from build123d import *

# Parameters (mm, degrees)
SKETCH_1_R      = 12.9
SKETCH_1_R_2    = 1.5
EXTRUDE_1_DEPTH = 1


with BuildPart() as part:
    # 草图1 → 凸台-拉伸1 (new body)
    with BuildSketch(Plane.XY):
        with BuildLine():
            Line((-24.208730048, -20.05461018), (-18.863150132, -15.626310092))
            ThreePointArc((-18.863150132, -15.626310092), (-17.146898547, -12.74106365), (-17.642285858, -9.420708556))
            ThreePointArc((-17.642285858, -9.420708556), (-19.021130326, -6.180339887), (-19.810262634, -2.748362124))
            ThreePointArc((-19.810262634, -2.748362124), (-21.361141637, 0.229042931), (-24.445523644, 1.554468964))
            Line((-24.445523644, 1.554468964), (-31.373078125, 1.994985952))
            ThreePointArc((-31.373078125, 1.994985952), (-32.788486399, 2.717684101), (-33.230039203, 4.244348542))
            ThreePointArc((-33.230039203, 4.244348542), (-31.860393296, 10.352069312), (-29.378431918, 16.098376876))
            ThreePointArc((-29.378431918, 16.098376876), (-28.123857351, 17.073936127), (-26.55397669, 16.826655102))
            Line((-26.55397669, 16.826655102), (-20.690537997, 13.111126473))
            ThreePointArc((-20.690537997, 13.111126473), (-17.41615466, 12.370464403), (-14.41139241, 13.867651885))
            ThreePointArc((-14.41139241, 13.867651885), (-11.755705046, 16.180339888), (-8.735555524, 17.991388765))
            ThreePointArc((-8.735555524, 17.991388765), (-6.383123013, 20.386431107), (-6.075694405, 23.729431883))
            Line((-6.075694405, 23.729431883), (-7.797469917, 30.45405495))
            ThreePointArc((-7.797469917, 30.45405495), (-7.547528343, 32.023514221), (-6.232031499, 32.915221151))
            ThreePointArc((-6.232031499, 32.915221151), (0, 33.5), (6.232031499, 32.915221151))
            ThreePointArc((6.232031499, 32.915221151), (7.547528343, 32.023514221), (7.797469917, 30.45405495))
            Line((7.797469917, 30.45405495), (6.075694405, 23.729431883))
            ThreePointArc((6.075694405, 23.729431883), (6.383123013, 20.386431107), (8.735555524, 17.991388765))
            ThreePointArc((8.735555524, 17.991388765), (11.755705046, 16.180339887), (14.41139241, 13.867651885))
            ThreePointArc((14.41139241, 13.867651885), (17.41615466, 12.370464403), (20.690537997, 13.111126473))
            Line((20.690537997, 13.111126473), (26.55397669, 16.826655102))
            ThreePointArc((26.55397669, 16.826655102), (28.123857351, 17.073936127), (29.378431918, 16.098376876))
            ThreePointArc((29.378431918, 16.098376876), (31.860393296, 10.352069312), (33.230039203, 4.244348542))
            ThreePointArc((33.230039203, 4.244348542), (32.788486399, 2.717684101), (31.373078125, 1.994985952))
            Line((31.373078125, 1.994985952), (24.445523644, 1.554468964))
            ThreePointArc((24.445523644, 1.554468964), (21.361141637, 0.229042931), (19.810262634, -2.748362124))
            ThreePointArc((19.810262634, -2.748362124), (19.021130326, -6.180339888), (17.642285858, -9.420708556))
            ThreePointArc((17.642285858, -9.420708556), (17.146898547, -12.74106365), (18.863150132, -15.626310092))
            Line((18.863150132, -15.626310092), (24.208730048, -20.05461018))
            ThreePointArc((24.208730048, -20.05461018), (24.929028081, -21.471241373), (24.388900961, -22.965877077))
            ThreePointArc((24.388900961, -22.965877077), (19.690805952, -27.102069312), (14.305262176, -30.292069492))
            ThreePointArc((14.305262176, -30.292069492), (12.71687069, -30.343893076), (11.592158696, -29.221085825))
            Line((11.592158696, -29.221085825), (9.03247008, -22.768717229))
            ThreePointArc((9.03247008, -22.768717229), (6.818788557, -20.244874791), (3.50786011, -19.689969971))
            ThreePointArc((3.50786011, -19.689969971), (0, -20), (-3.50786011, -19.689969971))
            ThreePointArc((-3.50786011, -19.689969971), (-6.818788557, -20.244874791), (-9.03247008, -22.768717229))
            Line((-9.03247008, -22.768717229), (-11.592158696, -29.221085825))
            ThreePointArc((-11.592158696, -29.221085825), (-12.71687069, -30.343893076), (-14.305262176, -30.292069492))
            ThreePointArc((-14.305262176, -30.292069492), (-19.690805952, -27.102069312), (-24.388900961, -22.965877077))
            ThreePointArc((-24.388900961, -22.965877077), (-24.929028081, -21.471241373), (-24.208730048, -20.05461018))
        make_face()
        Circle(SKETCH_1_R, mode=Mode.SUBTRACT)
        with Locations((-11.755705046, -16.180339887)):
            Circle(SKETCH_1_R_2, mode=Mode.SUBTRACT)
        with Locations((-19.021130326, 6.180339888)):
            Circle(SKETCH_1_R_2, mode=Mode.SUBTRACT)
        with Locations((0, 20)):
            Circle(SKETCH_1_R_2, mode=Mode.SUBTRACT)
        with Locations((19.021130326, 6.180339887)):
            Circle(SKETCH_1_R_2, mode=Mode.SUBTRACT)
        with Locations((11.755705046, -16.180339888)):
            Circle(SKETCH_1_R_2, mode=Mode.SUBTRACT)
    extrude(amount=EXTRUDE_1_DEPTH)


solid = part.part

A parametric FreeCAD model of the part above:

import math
import FreeCAD as App
import Part
import Sketcher

V = App.Vector
Q = App.Units.Quantity

doc = App.newDocument("Part")
params = doc.addObject("Spreadsheet::Sheet", "Params")
for row, (alias, value) in enumerate([
    ("sketch1_diameter", "3 mm"),
    ("sketch1_radius", "2 mm"),
    ("sketch1_radius2", "5 mm"),
    ("sketch1_radius3", "20 mm"),
    ("sketch1_diameter2", "25.8 mm"),
    ("pad1_length", "1 mm"),
], start=1):
    params.set(f"A{row}", alias)
    params.set(f"B{row}", "=" + value)
    params.setAlias(f"B{row}", alias)

body = doc.addObject("PartDesign::Body", "Body")

sketch1 = body.newObject("Sketcher::SketchObject", "Sketch")
sketch1.AttachmentSupport = (doc.getObject("XY_Plane"), [""])
sketch1.MapMode = "FlatFace"
sketch1.addGeometry(Part.LineSegment(V(-18.9, -15.6, 0), V(-24.2, -20.1, 0)), False)
sketch1.addGeometry(Part.ArcOfCircle(Part.Circle(V(-22.9, -21.6, 0), V(0, 0, 1), 2), math.radians(130), math.radians(223)), False)
sketch1.addGeometry(Part.ArcOfCircle(Part.Circle(V(0, 0, 0), V(0, 0, 1), 33.5), math.radians(-137), math.radians(-115)), False)
sketch1.addGeometry(Part.ArcOfCircle(Part.Circle(V(-13.5, -28.5, 0), V(0, 0, 1), 2), math.radians(-115), math.radians(-22)), False)
sketch1.addGeometry(Part.LineSegment(V(-11.6, -29.2, 0), V(-9, -22.8, 0)), False)
sketch1.addGeometry(Part.ArcOfCircle(Part.Circle(V(-4.4, -24.6, 0), V(0, 0, 1), 5), math.radians(80), math.radians(158)), False)
sketch1.addGeometry(Part.ArcOfCircle(Part.Circle(V(0, 0, 0), V(0, 0, 1), 20), math.radians(-100), math.radians(-80)), False)
sketch1.addGeometry(Part.ArcOfCircle(Part.Circle(V(4.4, -24.6, 0), V(0, 0, 1), 5), math.radians(22), math.radians(100)), False)
sketch1.addGeometry(Part.LineSegment(V(9, -22.8, 0), V(11.6, -29.2, 0)), False)
sketch1.addGeometry(Part.ArcOfCircle(Part.Circle(V(13.5, -28.5, 0), V(0, 0, 1), 2), math.radians(-158), math.radians(-65)), False)
sketch1.addGeometry(Part.ArcOfCircle(Part.Circle(V(0, 0, 0), V(0, 0, 1), 33.5), math.radians(-65), math.radians(-43)), False)
sketch1.addGeometry(Part.ArcOfCircle(Part.Circle(V(22.9, -21.6, 0), V(0, 0, 1), 2), math.radians(-43), math.radians(50)), False)
sketch1.addGeometry(Part.LineSegment(V(24.2, -20.1, 0), V(18.9, -15.6, 0)), False)
sketch1.addGeometry(Part.ArcOfCircle(Part.Circle(V(22.1, -11.8, 0), V(0, 0, 1), 5), math.radians(152), math.radians(230)), False)
sketch1.addGeometry(Part.ArcOfCircle(Part.Circle(V(0, 0, 0), V(0, 0, 1), 20), math.radians(-28), math.radians(-8)), False)
sketch1.addGeometry(Part.ArcOfCircle(Part.Circle(V(24.8, -3.4, 0), V(0, 0, 1), 5), math.radians(94), math.radians(172)), False)
sketch1.addGeometry(Part.LineSegment(V(24.4, 1.6, 0), V(31.4, 2, 0)), False)
sketch1.addGeometry(Part.ArcOfCircle(Part.Circle(V(31.2, 4, 0), V(0, 0, 1), 2), math.radians(-86), math.radians(7)), False)
sketch1.addGeometry(Part.ArcOfCircle(Part.Circle(V(0, 0, 0), V(0, 0, 1), 33.5), math.radians(7), math.radians(29)), False)
sketch1.addGeometry(Part.ArcOfCircle(Part.Circle(V(27.6, 15.1, 0), V(0, 0, 1), 2), math.radians(29), math.radians(122)), False)
sketch1.addGeometry(Part.LineSegment(V(26.6, 16.8, 0), V(20.7, 13.1, 0)), False)
sketch1.addGeometry(Part.ArcOfCircle(Part.Circle(V(18, 17.3, 0), V(0, 0, 1), 5), math.radians(-136), math.radians(-58)), False)
sketch1.addGeometry(Part.ArcOfCircle(Part.Circle(V(0, 0, 0), V(0, 0, 1), 20), math.radians(44), math.radians(64)), False)
sketch1.addGeometry(Part.ArcOfCircle(Part.Circle(V(10.9, 22.5, 0), V(0, 0, 1), 5), math.radians(166), math.radians(244)), False)
sketch1.addGeometry(Part.LineSegment(V(6.1, 23.7, 0), V(7.8, 30.5, 0)), False)
sketch1.addGeometry(Part.ArcOfCircle(Part.Circle(V(5.9, 31, 0), V(0, 0, 1), 2), math.radians(-14), math.radians(79)), False)
sketch1.addGeometry(Part.ArcOfCircle(Part.Circle(V(0, 0, 0), V(0, 0, 1), 33.5), math.radians(79), math.radians(101)), False)
sketch1.addGeometry(Part.ArcOfCircle(Part.Circle(V(-5.9, 31, 0), V(0, 0, 1), 2), math.radians(101), math.radians(194)), False)
sketch1.addGeometry(Part.LineSegment(V(-7.8, 30.5, 0), V(-6.1, 23.7, 0)), False)
sketch1.addGeometry(Part.ArcOfCircle(Part.Circle(V(-10.9, 22.5, 0), V(0, 0, 1), 5), math.radians(-64), math.radians(14)), False)
sketch1.addGeometry(Part.ArcOfCircle(Part.Circle(V(0, 0, 0), V(0, 0, 1), 20), math.radians(116), math.radians(136)), False)
sketch1.addGeometry(Part.ArcOfCircle(Part.Circle(V(-18, 17.3, 0), V(0, 0, 1), 5), math.radians(-122), math.radians(-44)), False)
sketch1.addGeometry(Part.LineSegment(V(-20.7, 13.1, 0), V(-26.6, 16.8, 0)), False)
sketch1.addGeometry(Part.ArcOfCircle(Part.Circle(V(-27.6, 15.1, 0), V(0, 0, 1), 2), math.radians(58), math.radians(151)), False)
sketch1.addGeometry(Part.ArcOfCircle(Part.Circle(V(0, 0, 0), V(0, 0, 1), 33.5), math.radians(151), math.radians(173)), False)
sketch1.addGeometry(Part.ArcOfCircle(Part.Circle(V(-31.2, 4, 0), V(0, 0, 1), 2), math.radians(173), math.radians(266)), False)
sketch1.addGeometry(Part.LineSegment(V(-31.4, 2, 0), V(-24.4, 1.6, 0)), False)
sketch1.addGeometry(Part.ArcOfCircle(Part.Circle(V(-24.8, -3.4, 0), V(0, 0, 1), 5), math.radians(8), math.radians(86)), False)
sketch1.addGeometry(Part.ArcOfCircle(Part.Circle(V(0, 0, 0), V(0, 0, 1), 20), math.radians(-172), math.radians(-152)), False)
sketch1.addGeometry(Part.ArcOfCircle(Part.Circle(V(-22.1, -11.8, 0), V(0, 0, 1), 5), math.radians(-50), math.radians(28)), False)
sketch1.addGeometry(Part.Circle(V(11.8, -16.2, 0), V(0, 0, 1), 1.5), False)
sketch1.addGeometry(Part.Circle(V(-11.8, -16.2, 0), V(0, 0, 1), 1.5), False)
sketch1.addGeometry(Part.Circle(V(0, 0, 0), V(0, 0, 1), 12.9), False)
sketch1.addGeometry(Part.Circle(V(19, 6.2, 0), V(0, 0, 1), 1.5), False)
sketch1.addGeometry(Part.Circle(V(-19, 6.2, 0), V(0, 0, 1), 1.5), False)
sketch1.addGeometry(Part.Circle(V(0, 20, 0), V(0, 0, 1), 1.5), False)
sketch1.addConstraint(Sketcher.Constraint("Tangent", 0, 2, 1, 1))
sketch1.addConstraint(Sketcher.Constraint("Tangent", 1, 2, 2, 1))
sketch1.addConstraint(Sketcher.Constraint("Tangent", 2, 2, 3, 1))
sketch1.addConstraint(Sketcher.Constraint("Tangent", 3, 2, 4, 1))
sketch1.addConstraint(Sketcher.Constraint("Tangent", 4, 2, 5, 2))
sketch1.addConstraint(Sketcher.Constraint("Tangent", 5, 1, 6, 1))
sketch1.addConstraint(Sketcher.Constraint("Tangent", 6, 2, 7, 2))
sketch1.addConstraint(Sketcher.Constraint("Tangent", 7, 1, 8, 1))
sketch1.addConstraint(Sketcher.Constraint("Tangent", 8, 2, 9, 1))
sketch1.addConstraint(Sketcher.Constraint("Tangent", 9, 2, 10, 1))
sketch1.addConstraint(Sketcher.Constraint("Tangent", 10, 2, 11, 1))
sketch1.addConstraint(Sketcher.Constraint("Tangent", 11, 2, 12, 1))
sketch1.addConstraint(Sketcher.Constraint("Tangent", 12, 2, 13, 2))
sketch1.addConstraint(Sketcher.Constraint("Tangent", 13, 1, 14, 1))
sketch1.addConstraint(Sketcher.Constraint("Tangent", 14, 2, 15, 2))
sketch1.addConstraint(Sketcher.Constraint("Tangent", 15, 1, 16, 1))
sketch1.addConstraint(Sketcher.Constraint("Tangent", 16, 2, 17, 1))
sketch1.addConstraint(Sketcher.Constraint("Tangent", 17, 2, 18, 1))
sketch1.addConstraint(Sketcher.Constraint("Tangent", 18, 2, 19, 1))
sketch1.addConstraint(Sketcher.Constraint("Tangent", 19, 2, 20, 1))
sketch1.addConstraint(Sketcher.Constraint("Tangent", 20, 2, 21, 2))
sketch1.addConstraint(Sketcher.Constraint("Tangent", 21, 1, 22, 1))
sketch1.addConstraint(Sketcher.Constraint("Tangent", 22, 2, 23, 2))
sketch1.addConstraint(Sketcher.Constraint("Tangent", 23, 1, 24, 1))
sketch1.addConstraint(Sketcher.Constraint("Tangent", 24, 2, 25, 1))
sketch1.addConstraint(Sketcher.Constraint("Tangent", 25, 2, 26, 1))
sketch1.addConstraint(Sketcher.Constraint("Tangent", 26, 2, 27, 1))
sketch1.addConstraint(Sketcher.Constraint("Tangent", 27, 2, 28, 1))
sketch1.addConstraint(Sketcher.Constraint("Tangent", 28, 2, 29, 2))
sketch1.addConstraint(Sketcher.Constraint("Tangent", 29, 1, 30, 1))
sketch1.addConstraint(Sketcher.Constraint("Tangent", 30, 2, 31, 2))
sketch1.addConstraint(Sketcher.Constraint("Tangent", 31, 1, 32, 1))
sketch1.addConstraint(Sketcher.Constraint("Tangent", 32, 2, 33, 1))
sketch1.addConstraint(Sketcher.Constraint("Tangent", 33, 2, 34, 1))
sketch1.addConstraint(Sketcher.Constraint("Tangent", 34, 2, 35, 1))
sketch1.addConstraint(Sketcher.Constraint("Tangent", 35, 2, 36, 1))
sketch1.addConstraint(Sketcher.Constraint("Tangent", 36, 2, 37, 2))
sketch1.addConstraint(Sketcher.Constraint("Tangent", 37, 1, 38, 1))
sketch1.addConstraint(Sketcher.Constraint("Tangent", 38, 2, 39, 2))
sketch1.addConstraint(Sketcher.Constraint("Tangent", 39, 1, 0, 1))
sketch1.addConstraint(Sketcher.Constraint("Coincident", 2, 3, -1, 1))
sketch1.addConstraint(Sketcher.Constraint("Coincident", 6, 3, -1, 1))
sketch1.addConstraint(Sketcher.Constraint("Coincident", 10, 3, -1, 1))
sketch1.addConstraint(Sketcher.Constraint("Coincident", 14, 3, -1, 1))
sketch1.addConstraint(Sketcher.Constraint("Coincident", 18, 3, -1, 1))
sketch1.addConstraint(Sketcher.Constraint("Coincident", 22, 3, -1, 1))
sketch1.addConstraint(Sketcher.Constraint("Coincident", 26, 3, -1, 1))
sketch1.addConstraint(Sketcher.Constraint("Coincident", 30, 3, -1, 1))
sketch1.addConstraint(Sketcher.Constraint("Coincident", 34, 3, -1, 1))
sketch1.addConstraint(Sketcher.Constraint("Coincident", 38, 3, -1, 1))
sketch1.addConstraint(Sketcher.Constraint("Coincident", 42, 3, -1, 1))
sketch1.addConstraint(Sketcher.Constraint("Equal", 1, 3))
sketch1.addConstraint(Sketcher.Constraint("Equal", 5, 7))
sketch1.addConstraint(Sketcher.Constraint("Equal", 3, 9))
sketch1.addConstraint(Sketcher.Constraint("Equal", 2, 10))
sketch1.addConstraint(Sketcher.Constraint("Equal", 9, 11))
sketch1.addConstraint(Sketcher.Constraint("Equal", 7, 13))
sketch1.addConstraint(Sketcher.Constraint("Equal", 6, 14))
sketch1.addConstraint(Sketcher.Constraint("Equal", 13, 15))
sketch1.addConstraint(Sketcher.Constraint("Equal", 11, 17))
sketch1.addConstraint(Sketcher.Constraint("Equal", 10, 18))
sketch1.addConstraint(Sketcher.Constraint("Equal", 17, 19))
sketch1.addConstraint(Sketcher.Constraint("Equal", 15, 21))
sketch1.addConstraint(Sketcher.Constraint("Equal", 14, 22))
sketch1.addConstraint(Sketcher.Constraint("Equal", 21, 23))
sketch1.addConstraint(Sketcher.Constraint("Equal", 19, 25))
sketch1.addConstraint(Sketcher.Constraint("Equal", 18, 26))
sketch1.addConstraint(Sketcher.Constraint("Equal", 25, 27))
sketch1.addConstraint(Sketcher.Constraint("Equal", 23, 29))
sketch1.addConstraint(Sketcher.Constraint("Equal", 22, 30))
sketch1.addConstraint(Sketcher.Constraint("Equal", 29, 31))
sketch1.addConstraint(Sketcher.Constraint("Equal", 27, 33))
sketch1.addConstraint(Sketcher.Constraint("Equal", 26, 34))
sketch1.addConstraint(Sketcher.Constraint("Equal", 33, 35))
sketch1.addConstraint(Sketcher.Constraint("Equal", 31, 37))
sketch1.addConstraint(Sketcher.Constraint("Equal", 30, 38))
sketch1.addConstraint(Sketcher.Constraint("Equal", 37, 39))
sketch1.addConstraint(Sketcher.Constraint("Equal", 40, 41))
sketch1.addConstraint(Sketcher.Constraint("Equal", 41, 43))
sketch1.addConstraint(Sketcher.Constraint("Equal", 43, 44))
sketch1.addConstraint(Sketcher.Constraint("Equal", 44, 45))
sketch1.addConstraint(Sketcher.Constraint("Symmetric", 40, 3, 41, 3, -2))
sketch1.addConstraint(Sketcher.Constraint("Symmetric", 43, 3, 44, 3, -2))
sketch1.addConstraint(Sketcher.Constraint("Symmetric", 4, 2, 7, 1, -2))
sketch1.addConstraint(Sketcher.Constraint("Symmetric", 0, 2, 11, 2, -2))
sketch1.addConstraint(Sketcher.Constraint("Symmetric", 24, 2, 27, 2, -2))
sketch1.addConstraint(Sketcher.Constraint("Symmetric", 20, 2, 31, 1, -2))
sketch1.addConstraint(Sketcher.Constraint("Symmetric", 16, 2, 35, 2, -2))
sketch1.addConstraint(Sketcher.Constraint("PointOnObject", 45, 3, -2))
sketch1.addConstraint(Sketcher.Constraint("Equal", 0, 4))
sketch1.addConstraint(Sketcher.Constraint("Equal", 12, 16))
sketch1.addConstraint(Sketcher.Constraint("Equal", 16, 20))
sketch1.addConstraint(Sketcher.Constraint("Equal", 20, 24))
sketch1.addConstraint(Sketcher.Constraint("Diameter", 40, Q("3 mm")))
sketch1.addConstraint(Sketcher.Constraint("Radius", 1, Q("2 mm")))
sketch1.addConstraint(Sketcher.Constraint("Radius", 5, Q("5 mm")))
sketch1.addConstraint(Sketcher.Constraint("Radius", 6, Q("20 mm")))
sketch1.addConstraint(Sketcher.Constraint("Diameter", 42, Q("25.8 mm")))
sketch1.addConstraint(Sketcher.Constraint("Radius", 2, Q("33.5 mm")))
sketch1.addConstraint(Sketcher.Constraint("DistanceY", -1, 1, 45, 3, Q("20 mm")))
sketch1.addConstraint(Sketcher.Constraint("DistanceX", 1, 2, -1, 1, Q("24.388901 mm")))
sketch1.addConstraint(Sketcher.Constraint("DistanceX", -1, 1, 15, 3, Q("24.762828 mm")))
sketch1.addConstraint(Sketcher.Constraint("DistanceY", -1, 1, 19, 3, Q("15.13728 mm")))
sketch1.addConstraint(Sketcher.Constraint("DistanceX", -1, 1, 21, 3, Q("18.014241 mm")))
sketch1.addConstraint(Sketcher.Constraint("DistanceX", -1, 1, 25, 3, Q("5.85997 mm")))
sketch1.addConstraint(Sketcher.Constraint("DistanceY", 40, 3, -1, 1, Q("16.18034 mm")))
sketch1.addConstraint(Sketcher.Constraint("DistanceX", -1, 1, 43, 3, Q("19.02113 mm")))
sketch1.addConstraint(Sketcher.Constraint("DistanceY", -1, 1, 43, 3, Q("6.18034 mm")))
sketch1.addConstraint(Sketcher.Constraint("DistanceY", 2, 2, -1, 1, Q("30.292069 mm")))
sketch1.addConstraint(Sketcher.Constraint("DistanceX", -1, 1, 40, 3, Q("11.755705 mm")))
sketch1.setExpression("Constraints[93]", "Params.sketch1_diameter")
sketch1.setExpression("Constraints[94]", "Params.sketch1_radius")
sketch1.setExpression("Constraints[95]", "Params.sketch1_radius2")
sketch1.setExpression("Constraints[96]", "Params.sketch1_radius3")
sketch1.setExpression("Constraints[97]", "Params.sketch1_diameter2")
pad1 = body.newObject("PartDesign::Pad", "Pad")
pad1.Profile = sketch1
pad1.setExpression("Length", "Params.pad1_length")

doc.recompute()
